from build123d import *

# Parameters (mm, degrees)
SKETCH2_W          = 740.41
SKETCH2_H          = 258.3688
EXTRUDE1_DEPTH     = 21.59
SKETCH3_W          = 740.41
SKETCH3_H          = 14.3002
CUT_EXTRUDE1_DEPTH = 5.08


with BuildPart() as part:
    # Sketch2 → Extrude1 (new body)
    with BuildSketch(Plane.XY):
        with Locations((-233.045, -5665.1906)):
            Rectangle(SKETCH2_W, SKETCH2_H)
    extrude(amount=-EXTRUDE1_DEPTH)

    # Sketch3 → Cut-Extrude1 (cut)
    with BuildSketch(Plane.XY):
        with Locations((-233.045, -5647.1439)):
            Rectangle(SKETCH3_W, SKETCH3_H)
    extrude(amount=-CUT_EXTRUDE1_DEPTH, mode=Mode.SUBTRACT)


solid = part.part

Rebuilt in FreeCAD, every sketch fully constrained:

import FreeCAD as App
import Part
import Sketcher
from FreeCAD import Vector
Q = App.Units.Quantity


def add_polygon(sketch, points):
    """Adds a closed chain of lines whose ends are joined by coincident constraints."""
    first, n = sketch.GeometryCount, len(points)
    for a, b in zip(points, points[1:] + points[:1]):
        sketch.addGeometry(Part.LineSegment(App.Vector(*a, 0), App.Vector(*b, 0)), False)
    for i in range(n):
        sketch.addConstraint(Sketcher.Constraint("Coincident", first + i, 2, first + (i + 1) % n, 1))

doc = App.newDocument("Part")
params = doc.addObject("Spreadsheet::Sheet", "Params")
for row, (alias, value) in enumerate([
    ("sketch1_width", "29.15 in"),
    ("sketch1_height", "10.172 in"),
    ("pad1_length", "0.85 in"),
    ("sketch2_width", "29.15 in"),
    ("sketch2_height", "0.563 in"),
    ("pocket1_length", "0.2 in"),
], start=1):
    params.set(f"A{row}", alias)
    params.set(f"B{row}", "=" + value)
    params.setAlias(f"B{row}", alias)

body = doc.addObject("PartDesign::Body", "Body")

# Sketch on XY plane
sketch1 = body.newObject("Sketcher::SketchObject", "Sketch")
sketch1.AttachmentSupport = (doc.getObject("XY_Plane"), [""])
sketch1.MapMode = "FlatFace"
add_polygon(sketch1, [(-603.25, -5536.0062), (-603.25, -5794.375), (137.16, -5794.375), (137.16, -5536.0062)])  # lines 0-3
sketch1.addConstraint(Sketcher.Constraint("Vertical", 0))
sketch1.addConstraint(Sketcher.Constraint("Horizontal", 1))
sketch1.addConstraint(Sketcher.Constraint("Vertical", 2))
sketch1.addConstraint(Sketcher.Constraint("Horizontal", 3))
sketch1.addConstraint(Sketcher.Constraint("DistanceX", 1, 1, 1, 2, Q("29.15 in")))
sketch1.addConstraint(Sketcher.Constraint("DistanceX", -1, 1, 1, 2, Q("5.4 in")))
sketch1.addConstraint(Sketcher.Constraint("DistanceY", 0, 2, 0, 1, Q("10.172 in")))
sketch1.addConstraint(Sketcher.Constraint("DistanceY", 0, 2, -1, 1, Q("228.125 in")))
sketch1.setExpression("Constraints[8]", "Params.sketch1_width")
sketch1.setExpression("Constraints[10]", "Params.sketch1_height")
pad1 = body.newObject("PartDesign::Pad", "Pad")
pad1.Profile = sketch1
pad1.setExpression("Length", "Params.pad1_length")
pad1.Reversed = True

# Sketch on XY plane
sketch2 = body.newObject("Sketcher::SketchObject", "Sketch001")
sketch2.AttachmentSupport = (doc.getObject("XY_Plane"), [""])
sketch2.MapMode = "FlatFace"
add_polygon(sketch2, [(-603.25, -5639.9938), (-603.25, -5654.294), (137.16, -5654.294), (137.16, -5639.9938)])  # lines 0-3
sketch2.addConstraint(Sketcher.Constraint("Vertical", 0))
sketch2.addConstraint(Sketcher.Constraint("Horizontal", 1))
sketch2.addConstraint(Sketcher.Constraint("Vertical", 2))
sketch2.addConstraint(Sketcher.Constraint("Horizontal", 3))
sketch2.addConstraint(Sketcher.Constraint("DistanceX", 1, 1, 1, 2, Q("29.15 in")))
sketch2.addConstraint(Sketcher.Constraint("DistanceX", -1, 1, 1, 2, Q("5.4 in")))
sketch2.addConstraint(Sketcher.Constraint("DistanceY", 0, 2, 0, 1, Q("0.563 in")))
sketch2.addConstraint(Sketcher.Constraint("DistanceY", 0, 2, -1, 1, Q("222.61 in")))
sketch2.setExpression("Constraints[8]", "Params.sketch2_width")
sketch2.setExpression("Constraints[10]", "Params.sketch2_height")
pocket1 = body.newObject("PartDesign::Pocket", "Pocket")
pocket1.Profile = sketch2
pocket1.setExpression("Length", "Params.pocket1_length")

doc.recompute()
